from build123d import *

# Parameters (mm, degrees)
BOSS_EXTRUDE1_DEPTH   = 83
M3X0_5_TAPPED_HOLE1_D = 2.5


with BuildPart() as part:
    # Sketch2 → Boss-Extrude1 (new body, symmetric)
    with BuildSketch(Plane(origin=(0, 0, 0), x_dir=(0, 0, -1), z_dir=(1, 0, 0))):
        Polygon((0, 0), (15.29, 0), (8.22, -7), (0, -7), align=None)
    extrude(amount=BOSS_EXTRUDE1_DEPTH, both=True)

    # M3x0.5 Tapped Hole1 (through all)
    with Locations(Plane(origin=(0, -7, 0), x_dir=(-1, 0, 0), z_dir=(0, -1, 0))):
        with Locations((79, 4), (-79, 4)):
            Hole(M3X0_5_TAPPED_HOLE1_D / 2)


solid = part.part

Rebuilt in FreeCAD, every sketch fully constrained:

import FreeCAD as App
import Part
import Sketcher

V = App.Vector
Q = App.Units.Quantity


def add_polygon(sketch, points):
    """Adds a closed chain of lines whose ends are joined by coincident constraints."""
    first, n = sketch.GeometryCount, len(points)
    for a, b in zip(points, points[1:] + points[:1]):
        sketch.addGeometry(Part.LineSegment(App.Vector(*a, 0), App.Vector(*b, 0)), False)
    for i in range(n):
        sketch.addConstraint(Sketcher.Constraint("Coincident", first + i, 2, first + (i + 1) % n, 1))

doc = App.newDocument("Part")
body = doc.addObject("PartDesign::Body", "Body")

sketch1 = body.newObject("Sketcher::SketchObject", "Sketch")
sketch1.AttachmentSupport = (doc.getObject("YZ_Plane"), [""])
sketch1.MapMode = "FlatFace"
add_polygon(sketch1, [(0, -15), (0, 0), (-7, 0), (-7, -8)])
sketch1.addConstraint([
    Sketcher.Constraint("Vertical", 0),
    Sketcher.Constraint("Horizontal", 1),
    Sketcher.Constraint("Vertical", 2),
    Sketcher.Constraint("Coincident", 0, 2, -1, 1),
    Sketcher.Constraint("DistanceX", 1, 2, 1, 1, Q("7 mm")),
    Sketcher.Constraint("DistanceY", 0, 1, 0, 2, Q("15.29 mm")),
    Sketcher.Constraint("DistanceY", 2, 2, 2, 1, Q("8.22 mm")),
])
pad1 = body.newObject("PartDesign::Pad", "Pad")
pad1.Profile = sketch1
pad1.Length = 166
pad1.Midplane = True

sketch2 = body.newObject("Sketcher::SketchObject", "Sketch001")
sketch2.AttachmentSupport = (doc.getObject("XZ_Plane"), [""])
sketch2.MapMode = "FlatFace"
sketch2.AttachmentOffset = App.Placement(V(0, 0, 7), App.Rotation())
sketch2.addGeometry([
    Part.Circle(V(-79, -4, 0), V(0, 0, 1), 1.2),
    Part.Circle(V(79, -4, 0), V(0, 0, 1), 1.2),
], False)
sketch2.addConstraint([
    Sketcher.Constraint("Equal", 0, 1),
    Sketcher.Constraint("Symmetric", 0, 3, 1, 3, -2),
    Sketcher.Constraint("Diameter", 0, Q("2.5 mm")),
    Sketcher.Constraint("DistanceX", 0, 3, -1, 1, Q("79 mm")),
    Sketcher.Constraint("DistanceY", 0, 3, -1, 1, Q("4 mm")),
])
doc.recompute()
hole = body.newObject("PartDesign::Hole", "Hole")
hole.Profile = sketch2
hole.ThreadType = "None"
hole.Diameter = 2.5
hole.DepthType = "ThroughAll"

doc.recompute()
